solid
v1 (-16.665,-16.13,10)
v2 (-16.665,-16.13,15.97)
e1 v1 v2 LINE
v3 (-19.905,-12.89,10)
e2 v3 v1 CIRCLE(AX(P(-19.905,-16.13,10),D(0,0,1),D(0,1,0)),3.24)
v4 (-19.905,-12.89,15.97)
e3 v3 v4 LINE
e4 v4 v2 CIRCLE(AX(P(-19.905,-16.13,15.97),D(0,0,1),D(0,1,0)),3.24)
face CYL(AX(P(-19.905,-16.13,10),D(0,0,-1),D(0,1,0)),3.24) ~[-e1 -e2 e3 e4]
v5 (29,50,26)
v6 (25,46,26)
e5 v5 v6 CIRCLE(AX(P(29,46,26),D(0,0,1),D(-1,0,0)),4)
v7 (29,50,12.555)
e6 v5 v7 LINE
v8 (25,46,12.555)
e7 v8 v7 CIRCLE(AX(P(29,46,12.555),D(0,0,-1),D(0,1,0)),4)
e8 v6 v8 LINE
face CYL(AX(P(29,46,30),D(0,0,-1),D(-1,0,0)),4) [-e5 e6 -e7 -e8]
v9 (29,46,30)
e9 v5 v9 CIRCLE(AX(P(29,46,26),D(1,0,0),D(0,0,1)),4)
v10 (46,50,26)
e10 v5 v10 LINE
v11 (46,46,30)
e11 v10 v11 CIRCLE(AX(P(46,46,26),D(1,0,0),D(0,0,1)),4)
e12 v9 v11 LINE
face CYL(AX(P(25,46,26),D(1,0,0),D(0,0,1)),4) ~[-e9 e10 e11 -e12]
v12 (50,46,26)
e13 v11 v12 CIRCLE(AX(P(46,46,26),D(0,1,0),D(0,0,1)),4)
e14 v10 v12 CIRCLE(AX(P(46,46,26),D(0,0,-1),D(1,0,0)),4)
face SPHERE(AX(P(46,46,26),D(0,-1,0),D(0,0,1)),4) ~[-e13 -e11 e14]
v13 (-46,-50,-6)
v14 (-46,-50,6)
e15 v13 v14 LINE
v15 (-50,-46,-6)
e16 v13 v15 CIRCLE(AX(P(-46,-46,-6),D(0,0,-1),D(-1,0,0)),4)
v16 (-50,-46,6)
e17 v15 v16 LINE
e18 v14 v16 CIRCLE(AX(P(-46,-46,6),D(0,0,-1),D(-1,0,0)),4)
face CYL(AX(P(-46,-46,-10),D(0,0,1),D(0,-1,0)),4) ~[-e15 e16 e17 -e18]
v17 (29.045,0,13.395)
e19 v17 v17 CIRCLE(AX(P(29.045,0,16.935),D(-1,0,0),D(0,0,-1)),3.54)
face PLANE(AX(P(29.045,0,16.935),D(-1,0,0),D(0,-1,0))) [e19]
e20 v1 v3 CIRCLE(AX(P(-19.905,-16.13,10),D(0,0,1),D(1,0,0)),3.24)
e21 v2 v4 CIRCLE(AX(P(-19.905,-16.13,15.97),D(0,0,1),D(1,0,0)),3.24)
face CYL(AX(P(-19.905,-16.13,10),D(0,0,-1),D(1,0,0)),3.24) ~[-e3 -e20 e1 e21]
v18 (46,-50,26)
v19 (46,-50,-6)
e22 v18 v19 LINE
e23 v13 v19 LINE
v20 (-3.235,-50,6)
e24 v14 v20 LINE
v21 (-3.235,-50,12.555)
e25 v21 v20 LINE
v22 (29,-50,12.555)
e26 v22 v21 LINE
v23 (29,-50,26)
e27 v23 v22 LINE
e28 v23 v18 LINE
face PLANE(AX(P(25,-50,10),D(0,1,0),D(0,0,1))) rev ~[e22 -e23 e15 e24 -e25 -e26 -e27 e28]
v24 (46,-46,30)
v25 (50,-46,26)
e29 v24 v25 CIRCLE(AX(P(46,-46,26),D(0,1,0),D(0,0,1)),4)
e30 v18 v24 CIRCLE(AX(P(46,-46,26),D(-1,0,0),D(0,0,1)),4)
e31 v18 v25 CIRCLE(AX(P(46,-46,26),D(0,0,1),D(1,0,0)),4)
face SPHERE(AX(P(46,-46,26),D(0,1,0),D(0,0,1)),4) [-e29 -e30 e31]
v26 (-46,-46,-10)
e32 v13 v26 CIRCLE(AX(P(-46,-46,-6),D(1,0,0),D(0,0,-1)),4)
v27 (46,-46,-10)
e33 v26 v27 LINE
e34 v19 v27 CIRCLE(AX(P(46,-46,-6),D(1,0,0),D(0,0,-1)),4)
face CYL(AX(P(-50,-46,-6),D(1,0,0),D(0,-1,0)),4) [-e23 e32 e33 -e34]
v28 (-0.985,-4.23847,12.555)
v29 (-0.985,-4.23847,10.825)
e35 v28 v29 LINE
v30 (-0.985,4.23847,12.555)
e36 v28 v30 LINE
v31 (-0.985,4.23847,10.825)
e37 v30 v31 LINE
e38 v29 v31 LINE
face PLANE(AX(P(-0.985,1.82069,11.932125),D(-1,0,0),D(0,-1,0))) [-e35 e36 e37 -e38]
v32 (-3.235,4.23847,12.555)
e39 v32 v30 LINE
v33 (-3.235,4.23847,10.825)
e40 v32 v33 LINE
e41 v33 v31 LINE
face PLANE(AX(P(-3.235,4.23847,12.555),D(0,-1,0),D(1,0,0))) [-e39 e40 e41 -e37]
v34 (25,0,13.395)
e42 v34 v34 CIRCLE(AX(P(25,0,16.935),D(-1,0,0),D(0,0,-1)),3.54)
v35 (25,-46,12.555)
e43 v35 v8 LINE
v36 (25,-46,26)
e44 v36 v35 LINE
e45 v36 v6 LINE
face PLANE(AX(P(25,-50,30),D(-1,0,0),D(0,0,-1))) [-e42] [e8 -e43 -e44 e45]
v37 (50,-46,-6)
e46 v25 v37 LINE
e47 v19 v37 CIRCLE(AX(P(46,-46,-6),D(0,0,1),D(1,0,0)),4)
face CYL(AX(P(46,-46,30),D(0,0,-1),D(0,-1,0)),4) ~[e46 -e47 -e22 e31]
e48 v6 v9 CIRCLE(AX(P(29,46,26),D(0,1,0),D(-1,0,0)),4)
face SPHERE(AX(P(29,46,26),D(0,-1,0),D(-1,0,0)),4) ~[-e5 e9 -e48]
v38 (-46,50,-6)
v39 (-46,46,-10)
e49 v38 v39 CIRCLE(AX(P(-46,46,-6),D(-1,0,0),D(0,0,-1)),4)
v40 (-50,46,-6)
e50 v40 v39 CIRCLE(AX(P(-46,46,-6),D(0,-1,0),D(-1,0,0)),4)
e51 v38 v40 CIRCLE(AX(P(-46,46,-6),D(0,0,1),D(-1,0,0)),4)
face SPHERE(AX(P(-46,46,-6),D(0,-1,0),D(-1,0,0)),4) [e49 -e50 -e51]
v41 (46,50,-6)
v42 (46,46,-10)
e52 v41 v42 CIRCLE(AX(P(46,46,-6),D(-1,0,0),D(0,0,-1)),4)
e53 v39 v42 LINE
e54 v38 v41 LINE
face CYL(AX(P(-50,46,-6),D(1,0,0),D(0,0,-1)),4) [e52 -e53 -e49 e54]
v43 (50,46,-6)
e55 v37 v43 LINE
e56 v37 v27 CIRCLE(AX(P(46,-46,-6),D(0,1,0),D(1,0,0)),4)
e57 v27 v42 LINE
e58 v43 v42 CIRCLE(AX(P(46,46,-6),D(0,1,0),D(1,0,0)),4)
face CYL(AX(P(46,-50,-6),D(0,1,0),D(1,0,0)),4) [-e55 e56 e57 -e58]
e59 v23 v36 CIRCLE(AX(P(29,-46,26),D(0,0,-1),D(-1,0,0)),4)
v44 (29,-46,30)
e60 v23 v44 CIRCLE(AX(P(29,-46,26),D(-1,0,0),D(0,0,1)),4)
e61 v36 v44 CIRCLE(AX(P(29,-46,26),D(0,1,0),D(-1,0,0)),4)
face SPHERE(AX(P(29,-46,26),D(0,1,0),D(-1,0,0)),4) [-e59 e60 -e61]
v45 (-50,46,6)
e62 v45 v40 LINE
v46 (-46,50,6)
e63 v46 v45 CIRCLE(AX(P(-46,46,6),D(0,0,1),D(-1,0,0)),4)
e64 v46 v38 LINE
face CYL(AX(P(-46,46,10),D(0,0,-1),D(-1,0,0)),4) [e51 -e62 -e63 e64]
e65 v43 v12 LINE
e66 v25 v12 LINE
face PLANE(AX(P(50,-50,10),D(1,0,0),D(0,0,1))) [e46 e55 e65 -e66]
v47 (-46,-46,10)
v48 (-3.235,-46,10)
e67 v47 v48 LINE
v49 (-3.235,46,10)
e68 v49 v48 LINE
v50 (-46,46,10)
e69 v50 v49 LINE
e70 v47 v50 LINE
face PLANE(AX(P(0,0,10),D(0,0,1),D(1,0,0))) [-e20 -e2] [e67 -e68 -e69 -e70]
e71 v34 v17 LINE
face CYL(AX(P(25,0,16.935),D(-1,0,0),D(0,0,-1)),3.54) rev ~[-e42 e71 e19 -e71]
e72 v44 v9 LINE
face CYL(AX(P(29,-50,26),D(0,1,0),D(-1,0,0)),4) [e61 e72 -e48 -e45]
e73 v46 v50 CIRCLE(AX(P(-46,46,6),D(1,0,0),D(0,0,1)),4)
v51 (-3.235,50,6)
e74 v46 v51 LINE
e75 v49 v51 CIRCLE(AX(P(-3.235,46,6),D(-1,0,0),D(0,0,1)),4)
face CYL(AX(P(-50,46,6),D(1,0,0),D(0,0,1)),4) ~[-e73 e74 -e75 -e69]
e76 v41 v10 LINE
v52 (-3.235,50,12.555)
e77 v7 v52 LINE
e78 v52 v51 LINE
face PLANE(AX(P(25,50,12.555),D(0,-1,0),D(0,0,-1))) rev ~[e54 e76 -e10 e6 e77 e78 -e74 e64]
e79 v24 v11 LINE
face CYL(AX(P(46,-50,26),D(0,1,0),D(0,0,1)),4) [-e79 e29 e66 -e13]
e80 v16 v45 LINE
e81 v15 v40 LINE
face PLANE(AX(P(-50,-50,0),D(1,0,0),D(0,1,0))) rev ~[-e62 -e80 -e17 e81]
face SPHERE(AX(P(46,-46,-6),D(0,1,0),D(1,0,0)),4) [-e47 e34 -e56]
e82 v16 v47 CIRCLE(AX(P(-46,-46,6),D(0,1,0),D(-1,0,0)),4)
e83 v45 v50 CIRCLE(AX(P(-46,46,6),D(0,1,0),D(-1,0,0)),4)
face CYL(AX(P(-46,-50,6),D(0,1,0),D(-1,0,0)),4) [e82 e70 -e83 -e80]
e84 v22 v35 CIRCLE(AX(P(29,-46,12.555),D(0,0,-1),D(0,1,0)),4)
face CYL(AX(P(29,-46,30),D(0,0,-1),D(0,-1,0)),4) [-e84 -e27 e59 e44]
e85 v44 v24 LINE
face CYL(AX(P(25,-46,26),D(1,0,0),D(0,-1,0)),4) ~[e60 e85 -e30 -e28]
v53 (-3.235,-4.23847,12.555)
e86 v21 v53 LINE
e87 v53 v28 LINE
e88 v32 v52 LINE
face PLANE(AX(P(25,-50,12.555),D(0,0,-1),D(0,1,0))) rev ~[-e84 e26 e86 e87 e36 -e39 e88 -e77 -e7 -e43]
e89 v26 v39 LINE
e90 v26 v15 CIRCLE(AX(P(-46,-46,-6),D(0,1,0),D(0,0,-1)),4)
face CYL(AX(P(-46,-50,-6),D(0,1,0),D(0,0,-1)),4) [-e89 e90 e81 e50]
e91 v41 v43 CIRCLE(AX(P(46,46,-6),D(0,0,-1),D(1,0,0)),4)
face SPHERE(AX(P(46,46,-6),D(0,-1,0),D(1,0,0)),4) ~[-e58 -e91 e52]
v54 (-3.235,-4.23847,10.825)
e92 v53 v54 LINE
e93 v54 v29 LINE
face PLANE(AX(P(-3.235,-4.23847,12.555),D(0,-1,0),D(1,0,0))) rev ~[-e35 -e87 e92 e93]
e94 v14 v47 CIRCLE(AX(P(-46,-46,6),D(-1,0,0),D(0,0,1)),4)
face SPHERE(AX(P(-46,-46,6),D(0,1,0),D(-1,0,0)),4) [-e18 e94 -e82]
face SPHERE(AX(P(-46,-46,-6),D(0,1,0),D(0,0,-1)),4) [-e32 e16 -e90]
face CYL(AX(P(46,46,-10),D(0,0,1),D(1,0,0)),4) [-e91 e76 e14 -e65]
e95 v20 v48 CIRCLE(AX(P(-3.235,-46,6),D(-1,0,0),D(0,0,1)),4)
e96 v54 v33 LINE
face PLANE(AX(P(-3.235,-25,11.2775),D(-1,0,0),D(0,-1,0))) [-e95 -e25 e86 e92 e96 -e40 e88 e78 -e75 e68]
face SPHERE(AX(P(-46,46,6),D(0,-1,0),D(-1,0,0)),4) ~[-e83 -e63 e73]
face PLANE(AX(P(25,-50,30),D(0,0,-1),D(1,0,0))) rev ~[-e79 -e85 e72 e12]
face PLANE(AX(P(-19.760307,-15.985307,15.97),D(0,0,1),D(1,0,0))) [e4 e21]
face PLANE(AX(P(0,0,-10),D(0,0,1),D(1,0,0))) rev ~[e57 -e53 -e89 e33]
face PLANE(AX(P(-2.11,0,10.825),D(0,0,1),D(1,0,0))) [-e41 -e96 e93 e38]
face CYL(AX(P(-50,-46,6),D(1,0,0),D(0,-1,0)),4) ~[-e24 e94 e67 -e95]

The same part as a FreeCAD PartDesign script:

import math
import FreeCAD as App
import Part
import Sketcher


def edges_at(feature, points):
    """Names of the edges that pass closest to the given points."""
    edges = feature.Shape.Edges
    near = lambda p: min(range(len(edges)), key=lambda i: edges[i].distToShape(Part.Vertex(*p))[0])
    return sorted({f"Edge{near(p) + 1}" for p in points})

doc = App.newDocument("Part")
body = doc.addObject("PartDesign::Body", "Body")

# Sketch on XY plane
sketch1 = body.newObject("Sketcher::SketchObject", "Sketch")
sketch1.AttachmentSupport = (doc.getObject("XY_Plane"), [""])
sketch1.MapMode = "FlatFace"
sketch1.addGeometry([
    Part.LineSegment(App.Vector(-50, 50, 0), App.Vector(-50, -50, 0)),
    Part.LineSegment(App.Vector(-50, -50, 0), App.Vector(50, -50, 0)),
    Part.LineSegment(App.Vector(50, -50, 0), App.Vector(50, 50, 0)),
    Part.LineSegment(App.Vector(50, 50, 0), App.Vector(-50, 50, 0)),
], False)
sketch1.addConstraint([
    Sketcher.Constraint("Coincident", 0, 2, 1, 1),
    Sketcher.Constraint("Coincident", 1, 2, 2, 1),
    Sketcher.Constraint("Coincident", 2, 2, 3, 1),
    Sketcher.Constraint("Coincident", 3, 2, 0, 1),
    Sketcher.Constraint("Vertical", 0),
    Sketcher.Constraint("Horizontal", 1),
    Sketcher.Constraint("Vertical", 2),
    Sketcher.Constraint("Horizontal", 3),
    Sketcher.Constraint("Symmetric", 0, 2, 2, 2, -1, 1),
    Sketcher.Constraint("Equal", 3, 0),
    Sketcher.Constraint("DistanceX", 1, 1, 1, 2, 100.0),
])
pad1 = body.newObject("PartDesign::Pad", "Pad")
pad1.Profile = sketch1
pad1.Length = 20
pad1.Midplane = True

# Sketch on XZ plane
sketch2 = body.newObject("Sketcher::SketchObject", "Sketch001")
sketch2.AttachmentSupport = (doc.getObject("XZ_Plane"), [""])
sketch2.MapMode = "FlatFace"
sketch2.AttachmentOffset = App.Placement(App.Vector(0, 0, 50), App.Rotation())
sketch2.addGeometry([
    Part.LineSegment(App.Vector(25, 10, 0), App.Vector(50, 10, 0)),
    Part.LineSegment(App.Vector(50, 10, 0), App.Vector(50, 30, 0)),
    Part.LineSegment(App.Vector(50, 30, 0), App.Vector(25, 30, 0)),
    Part.LineSegment(App.Vector(25, 30, 0), App.Vector(25, 10, 0)),
], False)
sketch2.addConstraint([
    Sketcher.Constraint("Coincident", 0, 2, 1, 1),
    Sketcher.Constraint("Coincident", 1, 2, 2, 1),
    Sketcher.Constraint("Coincident", 2, 2, 3, 1),
    Sketcher.Constraint("Coincident", 3, 2, 0, 1),
    Sketcher.Constraint("Horizontal", 0),
    Sketcher.Constraint("Vertical", 1),
    Sketcher.Constraint("Horizontal", 2),
    Sketcher.Constraint("Vertical", 3),
    Sketcher.Constraint("DistanceX", 0, 1, 0, 2, 25.0),
    Sketcher.Constraint("DistanceY", 1, 1, 1, 2, 20.0),
    Sketcher.Constraint("DistanceX", -1, 1, 0, 2, 50.0),
    Sketcher.Constraint("DistanceY", -1, 1, 0, 2, 10.0),
])
pad2 = body.newObject("PartDesign::Pad", "Pad001")
pad2.Profile = sketch2
pad2.Length = 100
pad2.Reversed = True

# Sketch on YZ plane
sketch3 = body.newObject("Sketcher::SketchObject", "Sketch002")
sketch3.AttachmentSupport = (doc.getObject("YZ_Plane"), [""])
sketch3.MapMode = "FlatFace"
sketch3.AttachmentOffset = App.Placement(App.Vector(0, 0, 25), App.Rotation())
sketch3.addGeometry(Part.Circle(App.Vector(0, 16.9, 0), App.Vector(0, 0, 1), 3.5), False)
sketch3.addConstraint([
    Sketcher.Constraint("PointOnObject", 0, 3, -2),
    Sketcher.Constraint("Diameter", 0, 7.08),
    Sketcher.Constraint("DistanceY", -1, 1, 0, 3, 16.935),
])
pocket1 = body.newObject("PartDesign::Pocket", "Pocket")
pocket1.Profile = sketch3
pocket1.Length = 4.045
pocket1.Reversed = True

# Sketch on YZ plane
sketch4 = body.newObject("Sketcher::SketchObject", "Sketch003")
sketch4.AttachmentSupport = (doc.getObject("YZ_Plane"), [""])
sketch4.MapMode = "FlatFace"
sketch4.AttachmentOffset = App.Placement(App.Vector(0, 0, 25), App.Rotation())
sketch4.addGeometry([
    Part.LineSegment(App.Vector(-50, 10, 0), App.Vector(-50, 12.6, 0)),
    Part.LineSegment(App.Vector(-50, 12.6, 0), App.Vector(50, 12.6, 0)),
    Part.LineSegment(App.Vector(50, 12.6, 0), App.Vector(50, 10, 0)),
    Part.LineSegment(App.Vector(50, 10, 0), App.Vector(-50, 10, 0)),
], False)
sketch4.addConstraint([
    Sketcher.Constraint("Coincident", 0, 2, 1, 1),
    Sketcher.Constraint("Coincident", 1, 2, 2, 1),
    Sketcher.Constraint("Coincident", 2, 2, 3, 1),
    Sketcher.Constraint("Coincident", 3, 2, 0, 1),
    Sketcher.Constraint("Vertical", 0),
    Sketcher.Constraint("Horizontal", 1),
    Sketcher.Constraint("Vertical", 2),
    Sketcher.Constraint("Horizontal", 3),
    Sketcher.Constraint("DistanceX", 1, 1, 1, 2, 100.0),
    Sketcher.Constraint("DistanceX", 0, 2, -1, 1, 50.0),
    Sketcher.Constraint("DistanceY", -1, 1, 2, 2, 10.0),
    Sketcher.Constraint("DistanceY", 0, 1, 0, 2, 2.555),
])
pad3 = body.newObject("PartDesign::Pad", "Pad002")
pad3.Profile = sketch4
pad3.Length = 28.235
pad3.Reversed = True

# Sketch on YZ plane
sketch5 = body.newObject("Sketcher::SketchObject", "Sketch004")
sketch5.AttachmentSupport = (doc.getObject("YZ_Plane"), [""])
sketch5.MapMode = "FlatFace"
sketch5.AttachmentOffset = App.Placement(App.Vector(0, 0, -3.235), App.Rotation())
sketch5.addGeometry([
    Part.ArcOfCircle(Part.Circle(App.Vector(0, 16.9, 0), App.Vector(0, 0, 1), 6.1), math.radians(-90), math.radians(-46)),
    Part.ArcOfCircle(Part.Circle(App.Vector(0, 16.9, 0), App.Vector(0, 0, 1), 6.1), math.radians(-134), math.radians(-90)),
    Part.LineSegment(App.Vector(-4.2, 12.6, 0), App.Vector(4.2, 12.6, 0)),
], False)
sketch5.addConstraint([
    Sketcher.Constraint("Tangent", 0, 1, 1, 2),
    Sketcher.Constraint("Coincident", 1, 1, 2, 1),
    Sketcher.Constraint("Coincident", 2, 2, 0, 2),
    Sketcher.Constraint("Horizontal", 2),
    Sketcher.Constraint("Equal", 0, 1),
    Sketcher.Constraint("PointOnObject", 0, 3, -2),
    Sketcher.Constraint("PointOnObject", 0, 1, -2),
    Sketcher.Constraint("Radius", 0, 6.095),
    Sketcher.Constraint("DistanceY", -1, 1, 0, 1, 10.84),
    Sketcher.Constraint("DistanceY", 1, 1, 0, 3, 4.38),
])
pocket2 = body.newObject("PartDesign::Pocket", "Pocket001")
pocket2.Profile = sketch5
pocket2.Length = 2.25
pocket2.Reversed = True

# Sketch on XY plane
sketch6 = body.newObject("Sketcher::SketchObject", "Sketch005")
sketch6.AttachmentSupport = (doc.getObject("XY_Plane"), [""])
sketch6.MapMode = "FlatFace"
sketch6.AttachmentOffset = App.Placement(App.Vector(0, 0, 10), App.Rotation())
sketch6.addGeometry([
    Part.ArcOfCircle(Part.Circle(App.Vector(-19.9, -16.1, 0), App.Vector(0, 0, 1), 3.2), math.radians(0), math.radians(90)),
    Part.ArcOfCircle(Part.Circle(App.Vector(-19.9, -16.1, 0), App.Vector(0, 0, 1), 3.2), math.radians(90), math.radians(360)),
], False)
sketch6.addConstraint([
    Sketcher.Constraint("Tangent", 0, 1, 1, 2),
    Sketcher.Constraint("Coincident", 1, 1, 0, 2),
    Sketcher.Constraint("Horizontal", 1, 3, 0, 1),
    Sketcher.Constraint("Vertical", 0, 3, 1, 1),
    Sketcher.Constraint("Radius", 0, 3.24),
    Sketcher.Constraint("DistanceY", 0, 3, -1, 1, 16.13),
    Sketcher.Constraint("DistanceX", 0, 3, -1, 1, 19.905),
])
pad4 = body.newObject("PartDesign::Pad", "Pad003")
pad4.Profile = sketch6
pad4.Length = 5.97
doc.recompute()

fillet = body.newObject("PartDesign::Fillet", "Fillet")
fillet.Base = (pad4, edges_at(pad4, [
    (25, 0, 30),
    (50, 0, 30),
    (-50, 0, 10),
    (-50, 0, -10),
    (50, 0, -10),
    (25, -50, 21.277),
    (37.5, -50, 30),
    (50, -50, 10),
    (0, -50, -10),
    (-50, -50, 0),
    (-50, 50, 0),
    (-26.617, 50, 10),
    (25, 50, 21.277),
    (37.5, 50, 30),
    (50, 50, 10),
    (0, 50, -10),
    (-26.617, -50, 10),
]))
fillet.Radius = 4

# Sketch on XY plane
sketch7 = body.newObject("Sketcher::SketchObject", "Sketch006")
sketch7.AttachmentSupport = (doc.getObject("XY_Plane"), [""])
sketch7.MapMode = "FlatFace"
sketch7.AttachmentOffset = App.Placement(App.Vector(0, 0, 12.555), App.Rotation())
sketch7.addGeometry([
    Part.LineSegment(App.Vector(-3.2, 4.2, 0), App.Vector(-3.2, -4.2, 0)),
    Part.LineSegment(App.Vector(-3.2, -4.2, 0), App.Vector(-1, -4.2, 0)),
    Part.LineSegment(App.Vector(-1, -4.2, 0), App.Vector(-1, 4.2, 0)),
    Part.LineSegment(App.Vector(-1, 4.2, 0), App.Vector(-3.2, 4.2, 0)),
], False)
sketch7.addConstraint([
    Sketcher.Constraint("Coincident", 0, 2, 1, 1),
    Sketcher.Constraint("Coincident", 1, 2, 2, 1),
    Sketcher.Constraint("Coincident", 2, 2, 3, 1),
    Sketcher.Constraint("Coincident", 3, 2, 0, 1),
    Sketcher.Constraint("Vertical", 0),
    Sketcher.Constraint("Horizontal", 1),
    Sketcher.Constraint("Vertical", 2),
    Sketcher.Constraint("Horizontal", 3),
    Sketcher.Constraint("DistanceX", 1, 1, 1, 2, 2.25),
    Sketcher.Constraint("DistanceX", 0, 2, -1, 1, 3.235),
    Sketcher.Constraint("DistanceY", 0, 2, 0, 1, 8.476939),
    Sketcher.Constraint("DistanceY", 0, 2, -1, 1, 4.23847),
])
pocket3 = body.newObject("PartDesign::Pocket", "Pocket002")
pocket3.Profile = sketch7
pocket3.Length = 1.73

doc.recompute()
